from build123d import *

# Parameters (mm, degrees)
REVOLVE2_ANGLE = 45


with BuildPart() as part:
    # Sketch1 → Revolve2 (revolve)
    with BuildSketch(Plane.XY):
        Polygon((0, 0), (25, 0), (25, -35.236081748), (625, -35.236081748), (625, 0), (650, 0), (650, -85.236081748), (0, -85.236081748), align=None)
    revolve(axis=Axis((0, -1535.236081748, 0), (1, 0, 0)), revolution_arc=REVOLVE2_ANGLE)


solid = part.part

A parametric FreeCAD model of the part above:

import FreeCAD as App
import Part
import Sketcher
from FreeCAD import Vector

doc = App.newDocument("Part")
body = doc.addObject("PartDesign::Body", "Body")

sketch1 = body.newObject("Sketcher::SketchObject", "Sketch")
sketch1.AttachmentSupport = (doc.getObject("XY_Plane"), [""])
sketch1.MapMode = "FlatFace"
sketch1.addGeometry(Part.LineSegment(Vector(25, 0, 0), Vector(0, 0, 0)), False)
sketch1.addGeometry(Part.LineSegment(Vector(0, 0, 0), Vector(0, -85, 0)), False)
sketch1.addGeometry(Part.LineSegment(Vector(0, -85, 0), Vector(650, -85, 0)), False)
sketch1.addGeometry(Part.LineSegment(Vector(650, -85, 0), Vector(650, 0, 0)), False)
sketch1.addGeometry(Part.LineSegment(Vector(650, 0, 0), Vector(625, 0, 0)), False)
sketch1.addGeometry(Part.LineSegment(Vector(625, 0, 0), Vector(625, -35, 0)), False)
sketch1.addGeometry(Part.LineSegment(Vector(625, -35, 0), Vector(25, -35, 0)), False)
sketch1.addGeometry(Part.LineSegment(Vector(25, -35, 0), Vector(25, 0, 0)), False)
sketch1.addGeometry(Part.LineSegment(Vector(0, -1535, 0), Vector(650, -1535, 0)), True)
sketch1.addConstraint(Sketcher.Constraint("Coincident", 0, 2, 1, 1))
sketch1.addConstraint(Sketcher.Constraint("Coincident", 1, 2, 2, 1))
sketch1.addConstraint(Sketcher.Constraint("Coincident", 2, 2, 3, 1))
sketch1.addConstraint(Sketcher.Constraint("Coincident", 3, 2, 4, 1))
sketch1.addConstraint(Sketcher.Constraint("Coincident", 4, 2, 5, 1))
sketch1.addConstraint(Sketcher.Constraint("Coincident", 5, 2, 6, 1))
sketch1.addConstraint(Sketcher.Constraint("Coincident", 6, 2, 7, 1))
sketch1.addConstraint(Sketcher.Constraint("Coincident", 7, 2, 0, 1))
sketch1.addConstraint(Sketcher.Constraint("Horizontal", 0))
sketch1.addConstraint(Sketcher.Constraint("Vertical", 1))
sketch1.addConstraint(Sketcher.Constraint("Horizontal", 2))
sketch1.addConstraint(Sketcher.Constraint("Vertical", 3))
sketch1.addConstraint(Sketcher.Constraint("Horizontal", 4))
sketch1.addConstraint(Sketcher.Constraint("Vertical", 5))
sketch1.addConstraint(Sketcher.Constraint("Horizontal", 6))
sketch1.addConstraint(Sketcher.Constraint("Vertical", 7))
sketch1.addConstraint(Sketcher.Constraint("Horizontal", 8))
sketch1.addConstraint(Sketcher.Constraint("Coincident", 0, 2, -1, 1))
sketch1.addConstraint(Sketcher.Constraint("PointOnObject", 3, 2, -1))
sketch1.addConstraint(Sketcher.Constraint("PointOnObject", 8, 1, -2))
sketch1.addConstraint(Sketcher.Constraint("Vertical", 3, 2, 8, 2))
sketch1.addConstraint(Sketcher.Constraint("Equal", 0, 4))
sketch1.addConstraint(Sketcher.Constraint("DistanceX", 0, 2, 0, 1, 25.0))
sketch1.addConstraint(Sketcher.Constraint("DistanceX", 2, 1, 2, 2, 650.0))
sketch1.addConstraint(Sketcher.Constraint("DistanceY", 2, 2, 5, 2, 50.0))
sketch1.addConstraint(Sketcher.Constraint("DistanceY", 8, 1, 1, 2, 1450.0))
sketch1.addConstraint(Sketcher.Constraint("DistanceY", 1, 2, 1, 1, 85.236082))
revolution = body.newObject("PartDesign::Revolution", "Revolution")
revolution.Profile = sketch1
revolution.ReferenceAxis = (sketch1, ["Axis0"])
revolution.Angle = 45

doc.recompute()
